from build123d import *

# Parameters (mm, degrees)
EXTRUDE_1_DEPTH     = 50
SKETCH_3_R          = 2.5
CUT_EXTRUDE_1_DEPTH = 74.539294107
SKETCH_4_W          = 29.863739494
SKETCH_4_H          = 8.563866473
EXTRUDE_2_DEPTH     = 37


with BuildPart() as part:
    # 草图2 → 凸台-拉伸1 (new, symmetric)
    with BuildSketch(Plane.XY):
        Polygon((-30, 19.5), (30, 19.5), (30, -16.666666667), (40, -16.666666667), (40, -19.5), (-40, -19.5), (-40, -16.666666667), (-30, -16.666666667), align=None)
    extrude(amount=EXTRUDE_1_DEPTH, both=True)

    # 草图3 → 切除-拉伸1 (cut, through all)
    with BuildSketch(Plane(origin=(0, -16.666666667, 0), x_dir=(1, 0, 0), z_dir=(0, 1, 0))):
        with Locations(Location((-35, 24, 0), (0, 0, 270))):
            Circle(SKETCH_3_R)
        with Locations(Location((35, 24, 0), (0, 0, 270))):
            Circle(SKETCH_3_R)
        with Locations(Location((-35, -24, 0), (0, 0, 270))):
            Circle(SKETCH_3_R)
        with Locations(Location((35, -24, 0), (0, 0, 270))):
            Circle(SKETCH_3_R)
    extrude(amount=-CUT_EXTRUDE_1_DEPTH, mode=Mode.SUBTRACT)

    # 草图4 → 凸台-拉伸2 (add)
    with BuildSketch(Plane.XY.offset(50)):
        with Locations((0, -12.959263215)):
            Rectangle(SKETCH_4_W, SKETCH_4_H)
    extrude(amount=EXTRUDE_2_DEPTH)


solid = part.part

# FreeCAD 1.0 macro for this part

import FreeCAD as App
import Part
import Sketcher

doc = App.newDocument("Part")
body = doc.addObject("PartDesign::Body", "Body")

sketch1 = doc.addObject("Sketcher::SketchObject", "Sketch")
body.addObject(sketch1)
sketch1.AttachmentSupport = (doc.XY_Plane, [""])
sketch1.MapMode = "FlatFace"
sketch1.addGeometry(Part.LineSegment(App.Vector(30, 19.5, 0), App.Vector(-30, 19.5, 0)), False)
sketch1.addGeometry(Part.LineSegment(App.Vector(-30, 19.5, 0), App.Vector(-30, -16.666667, 0)), False)
sketch1.addGeometry(Part.LineSegment(App.Vector(-30, -16.666667, 0), App.Vector(-40, -16.666667, 0)), False)
sketch1.addGeometry(Part.LineSegment(App.Vector(-40, -16.666667, 0), App.Vector(-40, -19.5, 0)), False)
sketch1.addGeometry(Part.LineSegment(App.Vector(-40, -19.5, 0), App.Vector(40, -19.5, 0)), False)
sketch1.addGeometry(Part.LineSegment(App.Vector(40, -19.5, 0), App.Vector(40, -16.666667, 0)), False)
sketch1.addGeometry(Part.LineSegment(App.Vector(40, -16.666667, 0), App.Vector(30, -16.666667, 0)), False)
sketch1.addGeometry(Part.LineSegment(App.Vector(30, -16.666667, 0), App.Vector(30, 19.5, 0)), False)
sketch1.addConstraint(Sketcher.Constraint("Coincident", 0, 2, 1, 1))
sketch1.addConstraint(Sketcher.Constraint("Coincident", 1, 2, 2, 1))
sketch1.addConstraint(Sketcher.Constraint("Coincident", 2, 2, 3, 1))
sketch1.addConstraint(Sketcher.Constraint("Coincident", 3, 2, 4, 1))
sketch1.addConstraint(Sketcher.Constraint("Coincident", 4, 2, 5, 1))
sketch1.addConstraint(Sketcher.Constraint("Coincident", 5, 2, 6, 1))
sketch1.addConstraint(Sketcher.Constraint("Coincident", 6, 2, 7, 1))
sketch1.addConstraint(Sketcher.Constraint("Coincident", 7, 2, 0, 1))
sketch1.addConstraint(Sketcher.Constraint("Horizontal", 0))
sketch1.addConstraint(Sketcher.Constraint("Vertical", 1))
sketch1.addConstraint(Sketcher.Constraint("Horizontal", 2))
sketch1.addConstraint(Sketcher.Constraint("Vertical", 3))
sketch1.addConstraint(Sketcher.Constraint("Horizontal", 4))
sketch1.addConstraint(Sketcher.Constraint("Vertical", 5))
sketch1.addConstraint(Sketcher.Constraint("Horizontal", 6))
sketch1.addConstraint(Sketcher.Constraint("Vertical", 7))
sketch1.addConstraint(Sketcher.Constraint("Symmetric", 2, 2, 5, 2, -2))
sketch1.addConstraint(Sketcher.Constraint("Equal", 2, 6))
sketch1.addConstraint(Sketcher.Constraint("DistanceX", 0, 2, 0, 1, 60.0))
sketch1.addConstraint(Sketcher.Constraint("DistanceX", 2, 2, 2, 1, 10.0))
sketch1.addConstraint(Sketcher.Constraint("DistanceY", 3, 2, 0, 2, 39.0))
sketch1.addConstraint(Sketcher.Constraint("DistanceY", -1, 1, 0, 2, 19.5))
sketch1.addConstraint(Sketcher.Constraint("DistanceY", 1, 2, 1, 1, 36.166667))
pad1 = doc.addObject("PartDesign::Pad", "Pad")
body.addObject(pad1)
pad1.Profile = sketch1
pad1.Length = 100
pad1.Midplane = True

sketch2 = doc.addObject("Sketcher::SketchObject", "Sketch001")
body.addObject(sketch2)
sketch2.AttachmentSupport = (doc.XZ_Plane, [""])
sketch2.MapMode = "FlatFace"
sketch2.AttachmentOffset = App.Placement(App.Vector(0, 0, 16.666667), App.Rotation())
sketch2.addGeometry(Part.Circle(App.Vector(-35, -24, 0), App.Vector(0, 0, 1), 2.5), False)
sketch2.addGeometry(Part.Circle(App.Vector(35, -24, 0), App.Vector(0, 0, 1), 2.5), False)
sketch2.addGeometry(Part.Circle(App.Vector(-35, 24, 0), App.Vector(0, 0, 1), 2.5), False)
sketch2.addGeometry(Part.Circle(App.Vector(35, 24, 0), App.Vector(0, 0, 1), 2.5), False)
sketch2.addConstraint(Sketcher.Constraint("Equal", 0, 1))
sketch2.addConstraint(Sketcher.Constraint("Equal", 1, 2))
sketch2.addConstraint(Sketcher.Constraint("Equal", 2, 3))
sketch2.addConstraint(Sketcher.Constraint("Symmetric", 1, 3, 2, 3, -1, 1))
sketch2.addConstraint(Sketcher.Constraint("Symmetric", 0, 3, 3, 3, -1, 1))
sketch2.addConstraint(Sketcher.Constraint("Symmetric", 0, 3, 1, 3, -2))
sketch2.addConstraint(Sketcher.Constraint("Diameter", 0, 5.0))
sketch2.addConstraint(Sketcher.Constraint("DistanceX", 0, 3, -1, 1, 35.0))
sketch2.addConstraint(Sketcher.Constraint("DistanceY", 0, 3, -1, 1, 24.0))
pocket1 = doc.addObject("PartDesign::Pocket", "Pocket")
body.addObject(pocket1)
pocket1.Profile = sketch2
pocket1.Type = "ThroughAll"
pocket1.Reversed = True

sketch3 = doc.addObject("Sketcher::SketchObject", "Sketch002")
body.addObject(sketch3)
sketch3.AttachmentSupport = (doc.XY_Plane, [""])
sketch3.MapMode = "FlatFace"
sketch3.AttachmentOffset = App.Placement(App.Vector(0, 0, 50), App.Rotation())
sketch3.addGeometry(Part.LineSegment(App.Vector(-14.93187, -8.67733, 0), App.Vector(-14.93187, -17.241196, 0)), False)
sketch3.addGeometry(Part.LineSegment(App.Vector(-14.93187, -17.241196, 0), App.Vector(14.93187, -17.241196, 0)), False)
sketch3.addGeometry(Part.LineSegment(App.Vector(14.93187, -17.241196, 0), App.Vector(14.93187, -8.67733, 0)), False)
sketch3.addGeometry(Part.LineSegment(App.Vector(14.93187, -8.67733, 0), App.Vector(-14.93187, -8.67733, 0)), False)
sketch3.addConstraint(Sketcher.Constraint("Coincident", 0, 2, 1, 1))
sketch3.addConstraint(Sketcher.Constraint("Coincident", 1, 2, 2, 1))
sketch3.addConstraint(Sketcher.Constraint("Coincident", 2, 2, 3, 1))
sketch3.addConstraint(Sketcher.Constraint("Coincident", 3, 2, 0, 1))
sketch3.addConstraint(Sketcher.Constraint("Vertical", 0))
sketch3.addConstraint(Sketcher.Constraint("Horizontal", 1))
sketch3.addConstraint(Sketcher.Constraint("Vertical", 2))
sketch3.addConstraint(Sketcher.Constraint("Horizontal", 3))
sketch3.addConstraint(Sketcher.Constraint("DistanceX", 1, 1, 1, 2, 29.863739))
sketch3.addConstraint(Sketcher.Constraint("DistanceY", 0, 2, 0, 1, 8.563866))
sketch3.addConstraint(Sketcher.Constraint("DistanceX", 0, 2, -1, 1, 14.93187))
sketch3.addConstraint(Sketcher.Constraint("DistanceY", 2, 2, -1, 1, 8.67733))
pad2 = doc.addObject("PartDesign::Pad", "Pad001")
body.addObject(pad2)
pad2.Profile = sketch3
pad2.Length = 37

doc.recompute()
